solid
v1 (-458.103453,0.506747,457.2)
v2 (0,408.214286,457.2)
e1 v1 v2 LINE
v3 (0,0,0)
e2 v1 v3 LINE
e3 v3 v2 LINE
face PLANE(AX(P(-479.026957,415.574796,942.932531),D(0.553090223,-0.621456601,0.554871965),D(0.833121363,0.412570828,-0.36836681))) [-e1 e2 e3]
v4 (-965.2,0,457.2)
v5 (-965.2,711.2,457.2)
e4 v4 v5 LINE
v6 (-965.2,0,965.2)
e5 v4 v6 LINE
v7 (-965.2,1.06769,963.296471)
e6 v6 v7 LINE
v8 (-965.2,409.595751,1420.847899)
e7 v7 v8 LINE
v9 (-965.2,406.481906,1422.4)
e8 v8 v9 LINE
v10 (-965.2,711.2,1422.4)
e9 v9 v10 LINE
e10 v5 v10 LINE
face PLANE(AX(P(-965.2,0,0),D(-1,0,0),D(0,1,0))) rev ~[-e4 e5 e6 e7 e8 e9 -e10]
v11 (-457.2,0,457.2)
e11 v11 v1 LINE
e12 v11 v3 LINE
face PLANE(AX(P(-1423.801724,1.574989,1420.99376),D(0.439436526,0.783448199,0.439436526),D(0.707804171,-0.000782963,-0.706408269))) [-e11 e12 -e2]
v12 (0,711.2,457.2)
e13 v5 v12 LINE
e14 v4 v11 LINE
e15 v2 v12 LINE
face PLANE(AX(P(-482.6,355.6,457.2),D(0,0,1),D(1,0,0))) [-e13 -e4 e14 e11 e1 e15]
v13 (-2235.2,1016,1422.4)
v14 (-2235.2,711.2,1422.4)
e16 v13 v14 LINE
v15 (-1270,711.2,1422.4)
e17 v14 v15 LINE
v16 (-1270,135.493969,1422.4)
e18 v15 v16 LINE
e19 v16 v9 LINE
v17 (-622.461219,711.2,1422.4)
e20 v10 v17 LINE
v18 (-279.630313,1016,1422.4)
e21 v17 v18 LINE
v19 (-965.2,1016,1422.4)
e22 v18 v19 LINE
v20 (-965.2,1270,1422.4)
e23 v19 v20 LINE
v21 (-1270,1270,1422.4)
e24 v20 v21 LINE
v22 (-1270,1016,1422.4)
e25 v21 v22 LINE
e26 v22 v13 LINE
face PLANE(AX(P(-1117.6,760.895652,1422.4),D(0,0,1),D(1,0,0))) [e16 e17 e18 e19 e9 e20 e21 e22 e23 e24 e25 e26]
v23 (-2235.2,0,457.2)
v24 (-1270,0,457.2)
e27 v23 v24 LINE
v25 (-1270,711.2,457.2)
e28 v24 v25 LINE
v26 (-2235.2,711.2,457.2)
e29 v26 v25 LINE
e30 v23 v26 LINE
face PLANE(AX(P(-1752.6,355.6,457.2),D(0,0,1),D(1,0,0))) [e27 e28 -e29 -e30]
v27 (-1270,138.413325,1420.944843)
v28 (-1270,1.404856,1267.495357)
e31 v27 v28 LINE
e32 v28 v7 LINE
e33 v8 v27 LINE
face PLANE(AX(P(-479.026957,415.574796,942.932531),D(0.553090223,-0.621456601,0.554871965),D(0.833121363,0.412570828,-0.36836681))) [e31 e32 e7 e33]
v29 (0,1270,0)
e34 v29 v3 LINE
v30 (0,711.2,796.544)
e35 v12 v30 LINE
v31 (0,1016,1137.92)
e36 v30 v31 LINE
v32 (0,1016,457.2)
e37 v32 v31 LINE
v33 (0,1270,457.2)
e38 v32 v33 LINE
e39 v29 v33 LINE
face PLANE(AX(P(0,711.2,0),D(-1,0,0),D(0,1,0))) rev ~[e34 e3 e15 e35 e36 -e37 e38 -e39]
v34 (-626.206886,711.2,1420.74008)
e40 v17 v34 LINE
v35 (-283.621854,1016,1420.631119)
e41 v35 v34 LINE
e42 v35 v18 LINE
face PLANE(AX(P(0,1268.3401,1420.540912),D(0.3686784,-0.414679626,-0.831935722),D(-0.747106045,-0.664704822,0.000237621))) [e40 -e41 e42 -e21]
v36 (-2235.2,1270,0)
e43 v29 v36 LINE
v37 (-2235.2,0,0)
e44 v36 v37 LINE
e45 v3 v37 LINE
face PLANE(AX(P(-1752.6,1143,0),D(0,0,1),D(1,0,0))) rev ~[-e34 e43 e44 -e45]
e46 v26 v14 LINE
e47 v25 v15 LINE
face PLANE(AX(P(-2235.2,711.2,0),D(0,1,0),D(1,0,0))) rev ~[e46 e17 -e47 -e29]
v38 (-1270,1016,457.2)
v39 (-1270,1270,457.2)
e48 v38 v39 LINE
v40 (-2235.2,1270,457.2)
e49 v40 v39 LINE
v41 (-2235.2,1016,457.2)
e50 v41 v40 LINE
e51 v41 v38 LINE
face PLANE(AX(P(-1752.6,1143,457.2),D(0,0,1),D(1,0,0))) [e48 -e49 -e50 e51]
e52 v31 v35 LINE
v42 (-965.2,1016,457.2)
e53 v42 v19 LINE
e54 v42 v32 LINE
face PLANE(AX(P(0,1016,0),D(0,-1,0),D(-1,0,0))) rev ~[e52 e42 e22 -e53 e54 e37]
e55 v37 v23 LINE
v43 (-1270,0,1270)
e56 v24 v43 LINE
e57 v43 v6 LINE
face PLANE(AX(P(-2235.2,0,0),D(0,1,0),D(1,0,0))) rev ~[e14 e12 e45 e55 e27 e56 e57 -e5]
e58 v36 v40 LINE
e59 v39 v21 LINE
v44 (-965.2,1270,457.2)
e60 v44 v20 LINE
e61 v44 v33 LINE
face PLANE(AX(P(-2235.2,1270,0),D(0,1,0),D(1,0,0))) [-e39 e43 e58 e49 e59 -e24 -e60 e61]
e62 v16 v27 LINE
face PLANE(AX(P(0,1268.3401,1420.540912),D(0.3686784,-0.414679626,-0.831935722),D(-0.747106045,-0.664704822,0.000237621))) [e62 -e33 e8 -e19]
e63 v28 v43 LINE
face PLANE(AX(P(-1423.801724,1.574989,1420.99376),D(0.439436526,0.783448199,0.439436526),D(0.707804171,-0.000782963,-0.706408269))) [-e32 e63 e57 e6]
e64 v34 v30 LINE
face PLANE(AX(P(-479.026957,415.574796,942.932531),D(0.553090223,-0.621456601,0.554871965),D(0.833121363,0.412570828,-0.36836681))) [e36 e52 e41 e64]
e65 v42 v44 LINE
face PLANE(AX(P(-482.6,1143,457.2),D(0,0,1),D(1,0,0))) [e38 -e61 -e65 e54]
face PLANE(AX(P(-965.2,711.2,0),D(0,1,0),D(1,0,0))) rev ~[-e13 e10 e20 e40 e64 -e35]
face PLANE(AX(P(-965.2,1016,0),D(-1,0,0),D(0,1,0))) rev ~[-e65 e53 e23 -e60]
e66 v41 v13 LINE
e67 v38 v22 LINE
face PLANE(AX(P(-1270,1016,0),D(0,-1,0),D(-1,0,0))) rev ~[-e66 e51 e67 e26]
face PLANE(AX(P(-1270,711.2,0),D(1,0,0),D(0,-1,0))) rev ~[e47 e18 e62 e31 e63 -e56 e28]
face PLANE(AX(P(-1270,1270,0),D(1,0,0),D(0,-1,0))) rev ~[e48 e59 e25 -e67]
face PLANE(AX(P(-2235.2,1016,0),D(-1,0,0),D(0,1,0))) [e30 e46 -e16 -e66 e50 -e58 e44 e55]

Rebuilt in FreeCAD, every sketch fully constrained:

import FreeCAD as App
import Part
import Sketcher

V = App.Vector
Q = App.Units.Quantity

doc = App.newDocument("Part")
body = doc.addObject("PartDesign::Body", "Body")

# Sketch on XY plane
sketch1 = body.newObject("Sketcher::SketchObject", "Sketch")
sketch1.AttachmentSupport = (doc.getObject("XY_Plane"), [""])
sketch1.MapMode = "FlatFace"
sketch1.addGeometry([
    Part.LineSegment(V(-1270, 0, 0), V(-965, 0, 0)),  # 0
    Part.LineSegment(V(-965, 0, 0), V(-965, 711, 0)),  # 1
    Part.LineSegment(V(-965, 711, 0), V(0, 711, 0)),  # 2
    Part.LineSegment(V(0, 711, 0), V(0, 1016, 0)),  # 3
    Part.LineSegment(V(0, 1016, 0), V(-965, 1016, 0)),  # 4
    Part.LineSegment(V(-965, 1016, 0), V(-965, 1270, 0)),  # 5
    Part.LineSegment(V(-965, 1270, 0), V(-1270, 1270, 0)),  # 6
    Part.LineSegment(V(-1270, 1270, 0), V(-1270, 1016, 0)),  # 7
    Part.LineSegment(V(-1270, 1016, 0), V(-2235, 1016, 0)),  # 8
    Part.LineSegment(V(-2235, 1016, 0), V(-2235, 711, 0)),  # 9
    Part.LineSegment(V(-2235, 711, 0), V(-1270, 711, 0)),  # 10
    Part.LineSegment(V(-1270, 711, 0), V(-1270, 0, 0)),  # 11
], False)
sketch1.addConstraint([
    Sketcher.Constraint("Coincident", 0, 2, 1, 1),
    Sketcher.Constraint("Coincident", 1, 2, 2, 1),
    Sketcher.Constraint("Coincident", 2, 2, 3, 1),
    Sketcher.Constraint("Coincident", 3, 2, 4, 1),
    Sketcher.Constraint("Coincident", 4, 2, 5, 1),
    Sketcher.Constraint("Coincident", 5, 2, 6, 1),
    Sketcher.Constraint("Coincident", 6, 2, 7, 1),
    Sketcher.Constraint("Coincident", 7, 2, 8, 1),
    Sketcher.Constraint("Coincident", 8, 2, 9, 1),
    Sketcher.Constraint("Coincident", 9, 2, 10, 1),
    Sketcher.Constraint("Coincident", 10, 2, 11, 1),
    Sketcher.Constraint("Coincident", 11, 2, 0, 1),
    Sketcher.Constraint("Horizontal", 0),
    Sketcher.Constraint("Vertical", 1),
    Sketcher.Constraint("Horizontal", 2),
    Sketcher.Constraint("Vertical", 3),
    Sketcher.Constraint("Horizontal", 4),
    Sketcher.Constraint("Vertical", 5),
    Sketcher.Constraint("Horizontal", 6),
    Sketcher.Constraint("Vertical", 7),
    Sketcher.Constraint("Horizontal", 8),
    Sketcher.Constraint("Vertical", 9),
    Sketcher.Constraint("Horizontal", 10),
    Sketcher.Constraint("Vertical", 11),
    Sketcher.Constraint("PointOnObject", 0, 2, -1),
    Sketcher.Constraint("PointOnObject", 2, 2, -2),
    Sketcher.Constraint("Horizontal", 4, 2, 7, 2),
    Sketcher.Constraint("Horizontal", 2, 2, 9, 2),
    Sketcher.Constraint("Vertical", 1, 2, 4, 2),
    Sketcher.Constraint("Vertical", 7, 2, 10, 2),
    Sketcher.Constraint("Equal", 4, 8),
    Sketcher.Constraint("Equal", 6, 3),
    Sketcher.Constraint("DistanceX", 0, 1, 0, 2, Q("12 in")),
    Sketcher.Constraint("DistanceX", 2, 1, 2, 2, Q("38 in")),
    Sketcher.Constraint("DistanceY", 1, 1, 1, 2, Q("28 in")),
    Sketcher.Constraint("DistanceY", 5, 1, 5, 2, Q("10 in")),
])
pad1 = body.newObject("PartDesign::Pad", "Pad")
pad1.Profile = sketch1
pad1.Length = Q("56 in")

# Sketch on XY plane
sketch2 = body.newObject("Sketcher::SketchObject", "Sketch001")
sketch2.AttachmentSupport = (doc.getObject("XY_Plane"), [""])
sketch2.MapMode = "FlatFace"
sketch2.addGeometry([
    Part.LineSegment(V(-2235, 1270, 0), V(-2235, 1016, 0)),  # 0
    Part.LineSegment(V(-2235, 1016, 0), V(-1270, 1016, 0)),  # 1
    Part.LineSegment(V(-1270, 1016, 0), V(-1270, 1270, 0)),  # 2
    Part.LineSegment(V(-1270, 1270, 0), V(-2235, 1270, 0)),  # 3
    Part.LineSegment(V(-965, 1270, 0), V(-965, 1016, 0)),  # 4
    Part.LineSegment(V(-965, 1016, 0), V(0, 1016, 0)),  # 5
    Part.LineSegment(V(0, 1016, 0), V(0, 1270, 0)),  # 6
    Part.LineSegment(V(0, 1270, 0), V(-965, 1270, 0)),  # 7
    Part.LineSegment(V(-2235, 711, 0), V(-2235, 0, 0)),  # 8
    Part.LineSegment(V(-2235, 0, 0), V(-1270, 0, 0)),  # 9
    Part.LineSegment(V(-1270, 0, 0), V(-1270, 711, 0)),  # 10
    Part.LineSegment(V(-1270, 711, 0), V(-2235, 711, 0)),  # 11
    Part.LineSegment(V(-965, 711, 0), V(-965, 0, 0)),  # 12
    Part.LineSegment(V(-965, 0, 0), V(0, 0, 0)),  # 13
    Part.LineSegment(V(0, 0, 0), V(0, 711, 0)),  # 14
    Part.LineSegment(V(0, 711, 0), V(-965, 711, 0)),  # 15
], False)
sketch2.addConstraint([
    Sketcher.Constraint("Coincident", 0, 2, 1, 1),
    Sketcher.Constraint("Coincident", 1, 2, 2, 1),
    Sketcher.Constraint("Coincident", 2, 2, 3, 1),
    Sketcher.Constraint("Coincident", 3, 2, 0, 1),
    Sketcher.Constraint("Coincident", 4, 2, 5, 1),
    Sketcher.Constraint("Coincident", 5, 2, 6, 1),
    Sketcher.Constraint("Coincident", 6, 2, 7, 1),
    Sketcher.Constraint("Coincident", 7, 2, 4, 1),
    Sketcher.Constraint("Coincident", 8, 2, 9, 1),
    Sketcher.Constraint("Coincident", 9, 2, 10, 1),
    Sketcher.Constraint("Coincident", 10, 2, 11, 1),
    Sketcher.Constraint("Coincident", 11, 2, 8, 1),
    Sketcher.Constraint("Coincident", 12, 2, 13, 1),
    Sketcher.Constraint("Coincident", 13, 2, 14, 1),
    Sketcher.Constraint("Coincident", 14, 2, 15, 1),
    Sketcher.Constraint("Coincident", 15, 2, 12, 1),
    Sketcher.Constraint("Vertical", 0),
    Sketcher.Constraint("Horizontal", 1),
    Sketcher.Constraint("Vertical", 2),
    Sketcher.Constraint("Horizontal", 3),
    Sketcher.Constraint("Vertical", 4),
    Sketcher.Constraint("Horizontal", 5),
    Sketcher.Constraint("Vertical", 6),
    Sketcher.Constraint("Horizontal", 7),
    Sketcher.Constraint("Vertical", 8),
    Sketcher.Constraint("Horizontal", 9),
    Sketcher.Constraint("Vertical", 10),
    Sketcher.Constraint("Horizontal", 11),
    Sketcher.Constraint("Vertical", 12),
    Sketcher.Constraint("Horizontal", 13),
    Sketcher.Constraint("Vertical", 14),
    Sketcher.Constraint("Horizontal", 15),
    Sketcher.Constraint("Coincident", 13, 2, -1, 1),
    Sketcher.Constraint("PointOnObject", 5, 2, -2),
    Sketcher.Constraint("PointOnObject", 8, 2, -1),
    Sketcher.Constraint("Horizontal", 1, 2, 4, 2),
    Sketcher.Constraint("Horizontal", 3, 2, 6, 2),
    Sketcher.Constraint("Horizontal", 11, 2, 14, 2),
    Sketcher.Constraint("Vertical", 3, 2, 8, 2),
    Sketcher.Constraint("Vertical", 2, 2, 9, 2),
    Sketcher.Constraint("Vertical", 7, 2, 12, 2),
    Sketcher.Constraint("Equal", 3, 5),
    Sketcher.Constraint("DistanceX", 1, 1, 1, 2, Q("38 in")),
    Sketcher.Constraint("DistanceY", 0, 2, 0, 1, Q("10 in")),
    Sketcher.Constraint("DistanceY", 8, 2, 8, 1, Q("28 in")),
    Sketcher.Constraint("DistanceX", 0, 2, -1, 1, Q("88 in")),
    Sketcher.Constraint("DistanceY", -1, 1, 0, 2, Q("40 in")),
])
pad2 = body.newObject("PartDesign::Pad", "Pad001")
pad2.Profile = sketch2
pad2.Length = Q("18 in")

# Sketch on an angled plane
sketch3 = body.newObject("Sketcher::SketchObject", "Sketch002")
sketch3.Placement = App.Placement(V(0, 0, 0), App.Rotation(V(0.833121363, 0.412570828, -0.36836681), V(0, 0.666015769, 0.745937662), V(0.553090223, -0.621456601, 0.554871965), "ZXY"))
sketch3.addGeometry([
    Part.LineSegment(V(0, 0, 0), V(0, 1904, 0)),
    Part.LineSegment(V(0, 1904, 0), V(-1709, 1061, 0)),
    Part.LineSegment(V(-1709, 1061, 0), V(0, 0, 0)),
], False)
sketch3.addConstraint([
    Sketcher.Constraint("Coincident", 0, 2, 1, 1),
    Sketcher.Constraint("Coincident", 1, 2, 2, 1),
    Sketcher.Constraint("Coincident", 2, 2, 0, 1),
    Sketcher.Constraint("Vertical", 0),
    Sketcher.Constraint("Coincident", 2, 2, -1, 1),
    Sketcher.Constraint("Distance", 1, Q("1905.755861 mm")),
    Sketcher.Constraint("DistanceY", 0, 1, 0, 2, Q("1904.369473 mm")),
    Sketcher.Constraint("DistanceX", 1, 2, -1, 1, Q("1708.996778 mm")),
])
pocket1 = body.newObject("PartDesign::Pocket", "Pocket")
pocket1.Profile = sketch3
pocket1.Length = Q("20 in")
pocket1.Reversed = True

doc.recompute()
